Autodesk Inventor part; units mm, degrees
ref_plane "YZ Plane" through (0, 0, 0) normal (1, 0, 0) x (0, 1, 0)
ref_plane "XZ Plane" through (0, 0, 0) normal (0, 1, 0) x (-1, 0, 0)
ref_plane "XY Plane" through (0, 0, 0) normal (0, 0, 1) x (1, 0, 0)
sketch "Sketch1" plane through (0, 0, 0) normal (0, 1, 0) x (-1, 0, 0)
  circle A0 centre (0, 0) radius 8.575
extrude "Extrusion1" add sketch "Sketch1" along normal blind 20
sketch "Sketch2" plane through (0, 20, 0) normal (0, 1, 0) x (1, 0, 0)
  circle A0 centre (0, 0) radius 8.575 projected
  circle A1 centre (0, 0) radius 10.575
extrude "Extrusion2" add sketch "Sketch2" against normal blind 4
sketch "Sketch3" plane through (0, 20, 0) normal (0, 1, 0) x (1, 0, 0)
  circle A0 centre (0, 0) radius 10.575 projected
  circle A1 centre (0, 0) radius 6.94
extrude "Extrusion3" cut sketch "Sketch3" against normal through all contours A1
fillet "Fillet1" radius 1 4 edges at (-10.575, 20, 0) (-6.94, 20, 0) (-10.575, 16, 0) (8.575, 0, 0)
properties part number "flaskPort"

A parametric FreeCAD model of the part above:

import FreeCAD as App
import Part
import Sketcher

V = App.Vector
Q = App.Units.Quantity


def edges_at(feature, points):
    """Names of the edges that pass closest to the given points."""
    edges = feature.Shape.Edges
    near = lambda p: min(range(len(edges)), key=lambda i: edges[i].distToShape(Part.Vertex(*p))[0])
    return sorted({f"Edge{near(p) + 1}" for p in points})

doc = App.newDocument("Part")
body = doc.addObject("PartDesign::Body", "Body")

sketch1 = body.newObject("Sketcher::SketchObject", "Sketch")
sketch1.AttachmentSupport = (doc.getObject("XZ_Plane"), [""])
sketch1.MapMode = "FlatFace"
sketch1.addGeometry(Part.Circle(V(0, 0, 0), V(0, 0, 1), 8.575), False)
sketch1.addConstraint([
    Sketcher.Constraint("Coincident", 0, 3, -1, 1),
    Sketcher.Constraint("Diameter", 0, Q("17.15 mm")),
])
pad1 = body.newObject("PartDesign::Pad", "Pad")
pad1.Profile = sketch1
pad1.Length = 20
pad1.Reversed = True

sketch2 = body.newObject("Sketcher::SketchObject", "Sketch001")
sketch2.AttachmentSupport = (doc.getObject("XZ_Plane"), [""])
sketch2.MapMode = "FlatFace"
sketch2.AttachmentOffset = App.Placement(V(0, 0, -20), App.Rotation())
sketch2.addGeometry([
    Part.Circle(V(0, 0, 0), V(0, 0, 1), 10.575),
    Part.Circle(V(0, 0, 0), V(0, 0, 1), 8.575),
], False)
sketch2.addConstraint([
    Sketcher.Constraint("Coincident", 0, 3, -1, 1),
    Sketcher.Constraint("Coincident", 1, 3, -1, 1),
    Sketcher.Constraint("Diameter", 0, Q("21.15 mm")),
    Sketcher.Constraint("Diameter", 1, Q("17.15 mm")),
])
pad2 = body.newObject("PartDesign::Pad", "Pad001")
pad2.Profile = sketch2
pad2.Length = 4

sketch3 = body.newObject("Sketcher::SketchObject", "Sketch002")
sketch3.AttachmentSupport = (doc.getObject("XZ_Plane"), [""])
sketch3.MapMode = "FlatFace"
sketch3.AttachmentOffset = App.Placement(V(0, 0, -20), App.Rotation())
sketch3.addGeometry(Part.Circle(V(0, 0, 0), V(0, 0, 1), 6.94), False)
sketch3.addConstraint([
    Sketcher.Constraint("Coincident", 0, 3, -1, 1),
    Sketcher.Constraint("Diameter", 0, Q("13.88 mm")),
])
pocket1 = body.newObject("PartDesign::Pocket", "Pocket")
pocket1.Profile = sketch3
pocket1.Type = "ThroughAll"
pocket1.Reversed = True
doc.recompute()

fillet = body.newObject("PartDesign::Fillet", "Fillet")
fillet.Base = (pocket1, edges_at(pocket1, [
    (-10.575, 20, 0),
    (-6.94, 20, 0),
    (-10.575, 16, 0),
    (8.575, 0, 0),
]))
fillet.Radius = 1

doc.recompute()
